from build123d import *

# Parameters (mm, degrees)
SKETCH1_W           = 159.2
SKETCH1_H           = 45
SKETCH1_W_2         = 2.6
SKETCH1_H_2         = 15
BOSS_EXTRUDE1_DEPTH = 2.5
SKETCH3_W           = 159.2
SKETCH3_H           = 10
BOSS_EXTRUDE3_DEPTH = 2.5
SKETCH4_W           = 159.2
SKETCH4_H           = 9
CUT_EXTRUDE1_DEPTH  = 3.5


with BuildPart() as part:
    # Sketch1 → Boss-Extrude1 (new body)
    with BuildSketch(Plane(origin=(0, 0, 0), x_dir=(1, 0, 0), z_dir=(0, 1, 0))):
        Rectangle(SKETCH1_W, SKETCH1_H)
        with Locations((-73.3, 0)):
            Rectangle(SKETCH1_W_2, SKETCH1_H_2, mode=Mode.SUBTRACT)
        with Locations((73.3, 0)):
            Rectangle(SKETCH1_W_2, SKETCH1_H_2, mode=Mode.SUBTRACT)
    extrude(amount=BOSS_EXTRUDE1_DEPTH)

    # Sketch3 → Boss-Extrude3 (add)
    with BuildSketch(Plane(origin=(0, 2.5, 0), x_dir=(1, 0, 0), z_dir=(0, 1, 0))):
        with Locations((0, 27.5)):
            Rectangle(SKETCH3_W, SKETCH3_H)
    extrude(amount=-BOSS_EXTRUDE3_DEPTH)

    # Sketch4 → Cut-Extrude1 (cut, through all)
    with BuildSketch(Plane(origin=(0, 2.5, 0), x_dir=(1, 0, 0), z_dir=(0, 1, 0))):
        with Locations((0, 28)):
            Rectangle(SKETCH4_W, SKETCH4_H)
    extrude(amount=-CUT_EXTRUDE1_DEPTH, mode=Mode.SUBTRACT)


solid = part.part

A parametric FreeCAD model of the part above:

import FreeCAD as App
import Part
import Sketcher

V = App.Vector
Q = App.Units.Quantity

doc = App.newDocument("Part")
params = doc.addObject("Spreadsheet::Sheet", "Params")
for row, (alias, value) in enumerate([
    ("sketch1_height", "45 mm"),
    ("sketch1_height2", "15 mm"),
    ("sketch1_width", "159.2 mm"),
    ("sketch1_width2", "2.6 mm"),
    ("pad1_length", "2.5 mm"),
    ("sketch2_height", "10 mm"),
    ("sketch2_width", "159.2 mm"),
    ("pad2_length", "2.5 mm"),
    ("sketch3_height", "9 mm"),
    ("sketch3_width", "159.2 mm"),
], start=1):
    params.set(f"A{row}", alias)
    params.set(f"B{row}", "=" + value)
    params.setAlias(f"B{row}", alias)

body = doc.addObject("PartDesign::Body", "Body")

# Sketch on XZ plane
sketch1 = doc.addObject("Sketcher::SketchObject", "Sketch")
body.addObject(sketch1)
sketch1.AttachmentSupport = (doc.XZ_Plane, [""])
sketch1.MapMode = "FlatFace"
sketch1.addGeometry([
    Part.LineSegment(V(-79.6, -22.5, 0), V(-79.6, 22.5, 0)),  # 0
    Part.LineSegment(V(-79.6, 22.5, 0), V(79.6, 22.5, 0)),  # 1
    Part.LineSegment(V(79.6, 22.5, 0), V(79.6, -22.5, 0)),  # 2
    Part.LineSegment(V(79.6, -22.5, 0), V(-79.6, -22.5, 0)),  # 3
    Part.LineSegment(V(-72, 7.5, 0), V(-74.6, 7.5, 0)),  # 4
    Part.LineSegment(V(-74.6, 7.5, 0), V(-74.6, -7.5, 0)),  # 5
    Part.LineSegment(V(-74.6, -7.5, 0), V(-72, -7.5, 0)),  # 6
    Part.LineSegment(V(-72, -7.5, 0), V(-72, 7.5, 0)),  # 7
    Part.LineSegment(V(74.6, 7.5, 0), V(72, 7.5, 0)),  # 8
    Part.LineSegment(V(72, 7.5, 0), V(72, -7.5, 0)),  # 9
    Part.LineSegment(V(72, -7.5, 0), V(74.6, -7.5, 0)),  # 10
    Part.LineSegment(V(74.6, -7.5, 0), V(74.6, 7.5, 0)),  # 11
], False)
sketch1.addConstraint([
    Sketcher.Constraint("Coincident", 0, 2, 1, 1),
    Sketcher.Constraint("Coincident", 1, 2, 2, 1),
    Sketcher.Constraint("Coincident", 2, 2, 3, 1),
    Sketcher.Constraint("Coincident", 3, 2, 0, 1),
    Sketcher.Constraint("Coincident", 4, 2, 5, 1),
    Sketcher.Constraint("Coincident", 5, 2, 6, 1),
    Sketcher.Constraint("Coincident", 6, 2, 7, 1),
    Sketcher.Constraint("Coincident", 7, 2, 4, 1),
    Sketcher.Constraint("Coincident", 8, 2, 9, 1),
    Sketcher.Constraint("Coincident", 9, 2, 10, 1),
    Sketcher.Constraint("Coincident", 10, 2, 11, 1),
    Sketcher.Constraint("Coincident", 11, 2, 8, 1),
    Sketcher.Constraint("Vertical", 0),
    Sketcher.Constraint("Horizontal", 1),
    Sketcher.Constraint("Vertical", 2),
    Sketcher.Constraint("Horizontal", 3),
    Sketcher.Constraint("Horizontal", 4),
    Sketcher.Constraint("Vertical", 5),
    Sketcher.Constraint("Horizontal", 6),
    Sketcher.Constraint("Vertical", 7),
    Sketcher.Constraint("Horizontal", 8),
    Sketcher.Constraint("Vertical", 9),
    Sketcher.Constraint("Horizontal", 10),
    Sketcher.Constraint("Vertical", 11),
    Sketcher.Constraint("Symmetric", 0, 2, 2, 2, -1, 1),
    Sketcher.Constraint("Symmetric", 6, 2, 8, 2, -1, 1),
    Sketcher.Constraint("Symmetric", 4, 2, 10, 2, -1, 1),
    Sketcher.Constraint("Horizontal", 7, 2, 8, 2),
    Sketcher.Constraint("DistanceY", 0, 1, 0, 2, Q("45 mm")),
    Sketcher.Constraint("DistanceY", 5, 2, 5, 1, Q("15 mm")),
    Sketcher.Constraint("DistanceX", 1, 1, 1, 2, Q("159.2 mm")),
    Sketcher.Constraint("DistanceX", 4, 2, 4, 1, Q("2.6 mm")),
    Sketcher.Constraint("DistanceX", 6, 2, -1, 1, Q("72 mm")),
])
sketch1.setExpression("Constraints[28]", "Params.sketch1_height")
sketch1.setExpression("Constraints[29]", "Params.sketch1_height2")
sketch1.setExpression("Constraints[30]", "Params.sketch1_width")
sketch1.setExpression("Constraints[31]", "Params.sketch1_width2")
pad1 = doc.addObject("PartDesign::Pad", "Pad")
body.addObject(pad1)
pad1.Profile = sketch1
pad1.setExpression("Length", "Params.pad1_length")
pad1.Reversed = True

# Sketch on XZ plane
sketch2 = doc.addObject("Sketcher::SketchObject", "Sketch001")
body.addObject(sketch2)
sketch2.AttachmentSupport = (doc.XZ_Plane, [""])
sketch2.MapMode = "FlatFace"
sketch2.AttachmentOffset = App.Placement(V(0, 0, -2.5), App.Rotation())
sketch2.addGeometry([
    Part.LineSegment(V(-80, -32, 0), V(-80, -22, 0)),
    Part.LineSegment(V(-80, -22, 0), V(80, -22, 0)),
    Part.LineSegment(V(80, -22, 0), V(80, -32, 0)),
    Part.LineSegment(V(80, -32, 0), V(-80, -32, 0)),
], False)
sketch2.addConstraint([
    Sketcher.Constraint("Coincident", 0, 2, 1, 1),
    Sketcher.Constraint("Coincident", 1, 2, 2, 1),
    Sketcher.Constraint("Coincident", 2, 2, 3, 1),
    Sketcher.Constraint("Coincident", 3, 2, 0, 1),
    Sketcher.Constraint("Vertical", 0),
    Sketcher.Constraint("Horizontal", 1),
    Sketcher.Constraint("Vertical", 2),
    Sketcher.Constraint("Horizontal", 3),
    Sketcher.Constraint("DistanceY", 0, 1, 0, 2, Q("10 mm")),
    Sketcher.Constraint("DistanceX", 1, 1, 1, 2, Q("159.2 mm")),
    Sketcher.Constraint("DistanceX", 0, 2, -1, 1, Q("79.6 mm")),
    Sketcher.Constraint("DistanceY", 0, 2, -1, 1, Q("22.5 mm")),
])
sketch2.setExpression("Constraints[8]", "Params.sketch2_height")
sketch2.setExpression("Constraints[9]", "Params.sketch2_width")
pad2 = doc.addObject("PartDesign::Pad", "Pad001")
body.addObject(pad2)
pad2.Profile = sketch2
pad2.setExpression("Length", "Params.pad2_length")

# Sketch on XZ plane
sketch3 = doc.addObject("Sketcher::SketchObject", "Sketch002")
body.addObject(sketch3)
sketch3.AttachmentSupport = (doc.XZ_Plane, [""])
sketch3.MapMode = "FlatFace"
sketch3.AttachmentOffset = App.Placement(V(0, 0, -2.5), App.Rotation())
sketch3.addGeometry([
    Part.LineSegment(V(-80, -32, 0), V(-80, -24, 0)),
    Part.LineSegment(V(-80, -24, 0), V(80, -24, 0)),
    Part.LineSegment(V(80, -24, 0), V(80, -32, 0)),
    Part.LineSegment(V(80, -32, 0), V(-80, -32, 0)),
], False)
sketch3.addConstraint([
    Sketcher.Constraint("Coincident", 0, 2, 1, 1),
    Sketcher.Constraint("Coincident", 1, 2, 2, 1),
    Sketcher.Constraint("Coincident", 2, 2, 3, 1),
    Sketcher.Constraint("Coincident", 3, 2, 0, 1),
    Sketcher.Constraint("Vertical", 0),
    Sketcher.Constraint("Horizontal", 1),
    Sketcher.Constraint("Vertical", 2),
    Sketcher.Constraint("Horizontal", 3),
    Sketcher.Constraint("DistanceY", 0, 1, 0, 2, Q("9 mm")),
    Sketcher.Constraint("DistanceX", 1, 1, 1, 2, Q("159.2 mm")),
    Sketcher.Constraint("DistanceX", 0, 2, -1, 1, Q("79.6 mm")),
    Sketcher.Constraint("DistanceY", 0, 2, -1, 1, Q("23.5 mm")),
])
sketch3.setExpression("Constraints[8]", "Params.sketch3_height")
sketch3.setExpression("Constraints[9]", "Params.sketch3_width")
pocket1 = doc.addObject("PartDesign::Pocket", "Pocket")
body.addObject(pocket1)
pocket1.Profile = sketch3
pocket1.Type = "ThroughAll"
pocket1.Reversed = True

doc.recompute()
